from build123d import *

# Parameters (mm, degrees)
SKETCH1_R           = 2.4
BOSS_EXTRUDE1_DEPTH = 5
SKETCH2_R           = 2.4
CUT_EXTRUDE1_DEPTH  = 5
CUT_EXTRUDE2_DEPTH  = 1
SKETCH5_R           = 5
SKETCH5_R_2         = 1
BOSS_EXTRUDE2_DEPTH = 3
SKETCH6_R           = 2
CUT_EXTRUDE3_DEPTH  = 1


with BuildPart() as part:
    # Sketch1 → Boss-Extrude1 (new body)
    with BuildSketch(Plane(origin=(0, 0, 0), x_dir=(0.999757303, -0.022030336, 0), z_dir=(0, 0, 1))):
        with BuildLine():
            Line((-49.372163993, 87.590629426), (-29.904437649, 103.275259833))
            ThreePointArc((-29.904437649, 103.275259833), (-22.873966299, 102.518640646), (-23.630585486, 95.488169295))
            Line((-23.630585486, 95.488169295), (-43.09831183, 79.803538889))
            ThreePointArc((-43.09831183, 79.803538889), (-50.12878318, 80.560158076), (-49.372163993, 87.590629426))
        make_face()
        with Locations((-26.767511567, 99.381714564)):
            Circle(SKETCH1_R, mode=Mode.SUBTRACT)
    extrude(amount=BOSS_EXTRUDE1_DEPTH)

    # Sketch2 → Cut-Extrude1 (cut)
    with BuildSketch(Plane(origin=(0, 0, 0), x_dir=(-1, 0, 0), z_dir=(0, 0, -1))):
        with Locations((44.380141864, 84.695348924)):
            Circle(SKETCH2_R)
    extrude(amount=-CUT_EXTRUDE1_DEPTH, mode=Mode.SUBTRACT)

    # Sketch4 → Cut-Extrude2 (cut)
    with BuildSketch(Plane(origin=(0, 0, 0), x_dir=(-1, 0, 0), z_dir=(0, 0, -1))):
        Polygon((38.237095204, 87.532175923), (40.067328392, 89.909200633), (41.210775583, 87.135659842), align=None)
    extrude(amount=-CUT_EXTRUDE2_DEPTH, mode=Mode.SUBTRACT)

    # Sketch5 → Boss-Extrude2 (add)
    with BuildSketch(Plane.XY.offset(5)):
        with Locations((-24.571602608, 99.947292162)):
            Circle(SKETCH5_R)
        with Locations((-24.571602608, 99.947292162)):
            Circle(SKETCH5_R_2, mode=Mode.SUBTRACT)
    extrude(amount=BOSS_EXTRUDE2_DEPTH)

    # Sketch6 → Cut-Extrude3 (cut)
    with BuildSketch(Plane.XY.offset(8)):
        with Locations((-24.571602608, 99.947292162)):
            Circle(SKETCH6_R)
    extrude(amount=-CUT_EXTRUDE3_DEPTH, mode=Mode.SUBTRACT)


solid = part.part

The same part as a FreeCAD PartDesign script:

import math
import FreeCAD as App
import Part
import Sketcher
from FreeCAD import Vector


def add_polygon(sketch, points):
    """Adds a closed chain of lines whose ends are joined by coincident constraints."""
    first, n = sketch.GeometryCount, len(points)
    for a, b in zip(points, points[1:] + points[:1]):
        sketch.addGeometry(Part.LineSegment(App.Vector(*a, 0), App.Vector(*b, 0)), False)
    for i in range(n):
        sketch.addConstraint(Sketcher.Constraint("Coincident", first + i, 2, first + (i + 1) % n, 1))

doc = App.newDocument("Part")
params = doc.addObject("Spreadsheet::Sheet", "Params")
for row, (alias, value) in enumerate([
    ("sketch1_radius", "5 mm"),
    ("sketch1_diameter", "4.8 mm"),
    ("sketch1_length", "25 mm"),
    ("pad1_length", "5 mm"),
    ("sketch2_diameter", "4.8 mm"),
    ("pocket1_length", "5 mm"),
    ("sketch3_length", "3 mm"),
    ("pocket2_length", "1 mm"),
    ("sketch4_diameter", "10 mm"),
    ("sketch4_diameter2", "2 mm"),
    ("pad2_length", "3 mm"),
    ("sketch5_diameter", "4 mm"),
    ("pocket3_length", "1 mm"),
], start=1):
    params.set(f"A{row}", alias)
    params.set(f"B{row}", "=" + value)
    params.setAlias(f"B{row}", alias)

body = doc.addObject("PartDesign::Body", "Body")

# Sketch on XY plane
sketch1 = body.newObject("Sketcher::SketchObject", "Sketch")
sketch1.AttachmentSupport = (doc.getObject("XY_Plane"), [""])
sketch1.MapMode = "FlatFace"
sketch1.addGeometry(Part.LineSegment(Vector(-27.6, 103.9, 0), Vector(-47.4, 88.7, 0)), False)
sketch1.addGeometry(Part.ArcOfCircle(Part.Circle(Vector(-44.4, 84.7, 0), Vector(0, 0, 1), 5), math.radians(128), math.radians(308)), False)
sketch1.addGeometry(Part.LineSegment(Vector(-41.3, 80.7, 0), Vector(-21.5, 96, 0)), False)
sketch1.addGeometry(Part.ArcOfCircle(Part.Circle(Vector(-24.6, 99.9, 0), Vector(0, 0, 1), 5), math.radians(-52), math.radians(128)), False)
sketch1.addGeometry(Part.Circle(Vector(-24.6, 99.9, 0), Vector(0, 0, 1), 2.4), False)
sketch1.addConstraint(Sketcher.Constraint("Tangent", 0, 2, 1, 1))
sketch1.addConstraint(Sketcher.Constraint("Tangent", 1, 2, 2, 1))
sketch1.addConstraint(Sketcher.Constraint("Tangent", 2, 2, 3, 1))
sketch1.addConstraint(Sketcher.Constraint("Tangent", 3, 2, 0, 1))
sketch1.addConstraint(Sketcher.Constraint("Coincident", 4, 3, 3, 3))
sketch1.addConstraint(Sketcher.Constraint("Equal", 1, 3))
sketch1.addConstraint(Sketcher.Constraint("Radius", 1, 5.0))
sketch1.addConstraint(Sketcher.Constraint("Diameter", 4, 4.8))
sketch1.addConstraint(Sketcher.Constraint("Distance", 0, 25.0))
sketch1.addConstraint(Sketcher.Constraint("DistanceY", -1, 1, 3, 2, 103.909))
sketch1.addConstraint(Sketcher.Constraint("DistanceX", 1, 3, -1, 1, 44.380142))
sketch1.addConstraint(Sketcher.Constraint("DistanceY", -1, 1, 1, 3, 84.695349))
sketch1.setExpression("Constraints[6]", "Params.sketch1_radius")
sketch1.setExpression("Constraints[7]", "Params.sketch1_diameter")
sketch1.setExpression("Constraints[8]", "Params.sketch1_length")
pad1 = body.newObject("PartDesign::Pad", "Pad")
pad1.Profile = sketch1
pad1.setExpression("Length", "Params.pad1_length")

# Sketch on XY plane
sketch2 = body.newObject("Sketcher::SketchObject", "Sketch001")
sketch2.AttachmentSupport = (doc.getObject("XY_Plane"), [""])
sketch2.MapMode = "FlatFace"
sketch2.addGeometry(Part.Circle(Vector(-44.4, 84.7, 0), Vector(0, 0, 1), 2.4), False)
sketch2.addConstraint(Sketcher.Constraint("Diameter", 0, 4.8))
sketch2.addConstraint(Sketcher.Constraint("DistanceX", 0, 3, -1, 1, 44.380142))
sketch2.addConstraint(Sketcher.Constraint("DistanceY", -1, 1, 0, 3, 84.695349))
sketch2.setExpression("Constraints[0]", "Params.sketch2_diameter")
pocket1 = body.newObject("PartDesign::Pocket", "Pocket")
pocket1.Profile = sketch2
pocket1.setExpression("Length", "Params.pocket1_length")
pocket1.Reversed = True

# Sketch on XY plane
sketch3 = body.newObject("Sketcher::SketchObject", "Sketch002")
sketch3.AttachmentSupport = (doc.getObject("XY_Plane"), [""])
sketch3.MapMode = "FlatFace"
add_polygon(sketch3, [(-40.1, 89.9), (-38.2, 87.5), (-41.2, 87.1)])  # lines 0-2
sketch3.addConstraint(Sketcher.Constraint("Equal", 0, 1))
sketch3.addConstraint(Sketcher.Constraint("Equal", 1, 2))
sketch3.addConstraint(Sketcher.Constraint("Distance", 0, 3.0))
sketch3.addConstraint(Sketcher.Constraint("DistanceY", -1, 1, 2, 2, 89.909201))
sketch3.addConstraint(Sketcher.Constraint("DistanceY", -1, 1, 1, 2, 87.13566))
sketch3.addConstraint(Sketcher.Constraint("DistanceX", 2, 2, -1, 1, 40.067328))
sketch3.setExpression("Constraints[5]", "Params.sketch3_length")
pocket2 = body.newObject("PartDesign::Pocket", "Pocket001")
pocket2.Profile = sketch3
pocket2.setExpression("Length", "Params.pocket2_length")
pocket2.Reversed = True

# Sketch on XY plane
sketch4 = body.newObject("Sketcher::SketchObject", "Sketch003")
sketch4.AttachmentSupport = (doc.getObject("XY_Plane"), [""])
sketch4.MapMode = "FlatFace"
sketch4.AttachmentOffset = App.Placement(Vector(0, 0, 5), App.Rotation())
sketch4.addGeometry(Part.Circle(Vector(-24.6, 99.9, 0), Vector(0, 0, 1), 5), False)
sketch4.addGeometry(Part.Circle(Vector(-24.6, 99.9, 0), Vector(0, 0, 1), 1), False)
sketch4.addConstraint(Sketcher.Constraint("Coincident", 1, 3, 0, 3))
sketch4.addConstraint(Sketcher.Constraint("Diameter", 0, 10.0))
sketch4.addConstraint(Sketcher.Constraint("Diameter", 1, 2.0))
sketch4.addConstraint(Sketcher.Constraint("DistanceX", 0, 3, -1, 1, 24.571603))
sketch4.addConstraint(Sketcher.Constraint("DistanceY", -1, 1, 0, 3, 99.947292))
sketch4.setExpression("Constraints[1]", "Params.sketch4_diameter")
sketch4.setExpression("Constraints[2]", "Params.sketch4_diameter2")
pad2 = body.newObject("PartDesign::Pad", "Pad001")
pad2.Profile = sketch4
pad2.setExpression("Length", "Params.pad2_length")

# Sketch on XY plane
sketch5 = body.newObject("Sketcher::SketchObject", "Sketch004")
sketch5.AttachmentSupport = (doc.getObject("XY_Plane"), [""])
sketch5.MapMode = "FlatFace"
sketch5.AttachmentOffset = App.Placement(Vector(0, 0, 8), App.Rotation())
sketch5.addGeometry(Part.Circle(Vector(-24.6, 99.9, 0), Vector(0, 0, 1), 2), False)
sketch5.addConstraint(Sketcher.Constraint("Diameter", 0, 4.0))
sketch5.addConstraint(Sketcher.Constraint("DistanceX", 0, 3, -1, 1, 24.571603))
sketch5.addConstraint(Sketcher.Constraint("DistanceY", -1, 1, 0, 3, 99.947292))
sketch5.setExpression("Constraints[0]", "Params.sketch5_diameter")
pocket3 = body.newObject("PartDesign::Pocket", "Pocket002")
pocket3.Profile = sketch5
pocket3.setExpression("Length", "Params.pocket3_length")

doc.recompute()
